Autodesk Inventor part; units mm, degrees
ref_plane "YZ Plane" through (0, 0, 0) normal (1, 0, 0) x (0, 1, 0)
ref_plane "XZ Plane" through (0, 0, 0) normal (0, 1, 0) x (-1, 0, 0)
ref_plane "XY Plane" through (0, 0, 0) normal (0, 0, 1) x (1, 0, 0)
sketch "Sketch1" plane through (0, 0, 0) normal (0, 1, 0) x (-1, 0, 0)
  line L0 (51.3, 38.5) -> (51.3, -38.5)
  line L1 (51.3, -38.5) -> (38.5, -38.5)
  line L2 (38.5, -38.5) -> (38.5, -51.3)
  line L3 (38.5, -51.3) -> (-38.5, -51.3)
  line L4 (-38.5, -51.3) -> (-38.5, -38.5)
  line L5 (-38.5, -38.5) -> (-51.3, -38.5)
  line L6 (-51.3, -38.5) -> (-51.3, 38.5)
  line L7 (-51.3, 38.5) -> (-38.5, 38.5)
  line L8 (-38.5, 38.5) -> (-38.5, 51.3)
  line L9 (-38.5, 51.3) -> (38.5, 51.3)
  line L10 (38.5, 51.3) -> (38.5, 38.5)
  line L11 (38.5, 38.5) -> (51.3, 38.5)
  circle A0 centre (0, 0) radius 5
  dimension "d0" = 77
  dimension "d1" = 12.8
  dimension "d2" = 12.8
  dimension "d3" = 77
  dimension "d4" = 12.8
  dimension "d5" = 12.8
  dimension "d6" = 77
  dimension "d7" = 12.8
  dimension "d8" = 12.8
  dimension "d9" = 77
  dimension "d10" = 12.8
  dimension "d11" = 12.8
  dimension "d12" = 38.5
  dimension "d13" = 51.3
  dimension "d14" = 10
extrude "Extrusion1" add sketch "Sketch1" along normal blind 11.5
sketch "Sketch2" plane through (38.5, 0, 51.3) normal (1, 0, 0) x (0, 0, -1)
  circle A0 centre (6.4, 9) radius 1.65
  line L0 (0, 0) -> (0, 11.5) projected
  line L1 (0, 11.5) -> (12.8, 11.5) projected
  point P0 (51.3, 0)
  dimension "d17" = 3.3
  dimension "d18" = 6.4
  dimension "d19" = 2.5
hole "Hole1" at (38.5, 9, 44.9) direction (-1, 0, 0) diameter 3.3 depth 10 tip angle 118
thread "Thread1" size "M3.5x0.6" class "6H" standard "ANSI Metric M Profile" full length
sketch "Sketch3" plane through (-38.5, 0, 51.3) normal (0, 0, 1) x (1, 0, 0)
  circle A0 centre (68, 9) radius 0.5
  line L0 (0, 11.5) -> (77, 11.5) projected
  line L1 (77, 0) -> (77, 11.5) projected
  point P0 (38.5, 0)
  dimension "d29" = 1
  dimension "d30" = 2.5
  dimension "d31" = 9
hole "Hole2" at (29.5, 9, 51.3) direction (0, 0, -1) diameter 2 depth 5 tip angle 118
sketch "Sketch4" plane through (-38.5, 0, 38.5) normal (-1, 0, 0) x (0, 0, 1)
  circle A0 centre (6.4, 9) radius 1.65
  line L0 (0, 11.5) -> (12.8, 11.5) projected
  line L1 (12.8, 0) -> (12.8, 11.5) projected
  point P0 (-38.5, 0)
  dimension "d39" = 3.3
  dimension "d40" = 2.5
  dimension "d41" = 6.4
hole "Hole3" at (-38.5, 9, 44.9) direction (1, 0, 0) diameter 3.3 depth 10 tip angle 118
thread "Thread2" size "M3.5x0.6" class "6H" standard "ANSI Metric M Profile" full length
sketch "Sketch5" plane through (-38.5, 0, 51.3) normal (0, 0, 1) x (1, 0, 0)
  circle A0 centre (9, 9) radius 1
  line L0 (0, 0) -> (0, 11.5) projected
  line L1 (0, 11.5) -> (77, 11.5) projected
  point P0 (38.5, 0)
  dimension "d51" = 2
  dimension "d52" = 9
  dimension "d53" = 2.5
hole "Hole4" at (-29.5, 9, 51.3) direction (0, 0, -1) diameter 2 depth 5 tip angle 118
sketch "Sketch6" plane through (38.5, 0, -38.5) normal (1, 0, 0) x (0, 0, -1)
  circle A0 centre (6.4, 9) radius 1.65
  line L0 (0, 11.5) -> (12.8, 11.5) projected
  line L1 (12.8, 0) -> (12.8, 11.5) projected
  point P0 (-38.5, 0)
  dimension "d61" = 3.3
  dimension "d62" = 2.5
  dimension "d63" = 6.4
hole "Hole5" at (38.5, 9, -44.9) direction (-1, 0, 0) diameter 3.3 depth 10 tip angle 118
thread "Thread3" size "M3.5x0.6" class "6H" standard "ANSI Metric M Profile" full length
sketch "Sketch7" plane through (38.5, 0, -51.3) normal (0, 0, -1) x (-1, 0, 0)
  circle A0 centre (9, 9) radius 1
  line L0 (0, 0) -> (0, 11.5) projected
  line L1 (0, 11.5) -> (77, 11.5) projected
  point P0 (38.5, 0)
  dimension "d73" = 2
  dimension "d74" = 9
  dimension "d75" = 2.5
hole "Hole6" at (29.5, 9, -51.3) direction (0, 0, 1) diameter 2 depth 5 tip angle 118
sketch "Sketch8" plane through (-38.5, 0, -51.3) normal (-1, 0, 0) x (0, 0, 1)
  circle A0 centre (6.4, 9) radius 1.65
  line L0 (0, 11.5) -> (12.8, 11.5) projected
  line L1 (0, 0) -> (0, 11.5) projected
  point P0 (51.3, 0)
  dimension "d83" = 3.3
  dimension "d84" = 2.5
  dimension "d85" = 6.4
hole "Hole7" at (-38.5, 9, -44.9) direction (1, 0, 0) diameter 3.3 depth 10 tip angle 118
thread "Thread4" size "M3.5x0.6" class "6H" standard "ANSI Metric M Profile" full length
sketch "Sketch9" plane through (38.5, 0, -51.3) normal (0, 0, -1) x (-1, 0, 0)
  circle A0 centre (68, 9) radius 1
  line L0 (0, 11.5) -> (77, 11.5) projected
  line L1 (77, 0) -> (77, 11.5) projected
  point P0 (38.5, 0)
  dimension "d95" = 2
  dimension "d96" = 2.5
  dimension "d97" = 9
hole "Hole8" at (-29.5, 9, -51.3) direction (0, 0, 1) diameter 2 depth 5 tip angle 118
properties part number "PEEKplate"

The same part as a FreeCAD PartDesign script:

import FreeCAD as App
import Part
import Sketcher
from FreeCAD import Vector
Q = App.Units.Quantity


def add_polygon(sketch, points):
    """Adds a closed chain of lines whose ends are joined by coincident constraints."""
    first, n = sketch.GeometryCount, len(points)
    for a, b in zip(points, points[1:] + points[:1]):
        sketch.addGeometry(Part.LineSegment(App.Vector(*a, 0), App.Vector(*b, 0)), False)
    for i in range(n):
        sketch.addConstraint(Sketcher.Constraint("Coincident", first + i, 2, first + (i + 1) % n, 1))

doc = App.newDocument("Part")
body = doc.addObject("PartDesign::Body", "Body")

sketch1 = body.newObject("Sketcher::SketchObject", "Sketch")
sketch1.AttachmentSupport = (doc.getObject("XZ_Plane"), [""])
sketch1.MapMode = "FlatFace"
add_polygon(sketch1, [(-51, -38), (-51, 38), (-38, 38), (-38, 51), (38, 51), (38, 38), (51, 38), (51, -38), (38, -38), (38, -51), (-38, -51), (-38, -38)])
sketch1.addGeometry(Part.Circle(Vector(0, 0, 0), Vector(0, 0, 1), 5), False)
sketch1.addConstraint(Sketcher.Constraint("Vertical", 0))
sketch1.addConstraint(Sketcher.Constraint("Horizontal", 1))
sketch1.addConstraint(Sketcher.Constraint("Vertical", 2))
sketch1.addConstraint(Sketcher.Constraint("Horizontal", 3))
sketch1.addConstraint(Sketcher.Constraint("Vertical", 4))
sketch1.addConstraint(Sketcher.Constraint("Horizontal", 5))
sketch1.addConstraint(Sketcher.Constraint("Vertical", 6))
sketch1.addConstraint(Sketcher.Constraint("Horizontal", 7))
sketch1.addConstraint(Sketcher.Constraint("Vertical", 8))
sketch1.addConstraint(Sketcher.Constraint("Horizontal", 9))
sketch1.addConstraint(Sketcher.Constraint("Vertical", 10))
sketch1.addConstraint(Sketcher.Constraint("Horizontal", 11))
sketch1.addConstraint(Sketcher.Constraint("Coincident", 12, 3, -1, 1))
sketch1.addConstraint(Sketcher.Constraint("Symmetric", 0, 2, 6, 2, -1, 1))
sketch1.addConstraint(Sketcher.Constraint("Symmetric", 2, 2, 8, 2, -1, 1))
sketch1.addConstraint(Sketcher.Constraint("Symmetric", 4, 2, 10, 2, -1, 1))
sketch1.addConstraint(Sketcher.Constraint("Symmetric", 1, 2, 4, 2, -2))
sketch1.addConstraint(Sketcher.Constraint("Equal", 9, 0))
sketch1.addConstraint(Sketcher.Constraint("Equal", 11, 2))
sketch1.addConstraint(Sketcher.Constraint("Diameter", 12, Q("10 mm")))
sketch1.addConstraint(Sketcher.Constraint("DistanceX", 3, 1, 3, 2, Q("77 mm")))
sketch1.addConstraint(Sketcher.Constraint("DistanceX", 1, 1, 1, 2, Q("12.8 mm")))
pad1 = body.newObject("PartDesign::Pad", "Pad")
pad1.Profile = sketch1
pad1.Length = 11.5
pad1.Reversed = True

sketch2 = body.newObject("Sketcher::SketchObject", "Sketch001")
sketch2.AttachmentSupport = (doc.getObject("YZ_Plane"), [""])
sketch2.MapMode = "FlatFace"
sketch2.AttachmentOffset = App.Placement(Vector(0, 0, 38.5), App.Rotation())
sketch2.addGeometry(Part.Circle(Vector(9, 44.9, 0), Vector(0, 0, 1), 1.6), False)
sketch2.addConstraint(Sketcher.Constraint("Diameter", 0, Q("3.3 mm")))
sketch2.addConstraint(Sketcher.Constraint("DistanceX", -1, 1, 0, 3, Q("9 mm")))
sketch2.addConstraint(Sketcher.Constraint("DistanceY", -1, 1, 0, 3, Q("44.9 mm")))
doc.recompute()
hole = body.newObject("PartDesign::Hole", "Hole")
hole.Profile = sketch2
hole.ThreadType = "None"
hole.Diameter = 3.3
hole.DepthType = "Dimension"
hole.Depth = 10
hole.DrillPoint = "Angled"
hole.DrillPointAngle = 118

sketch3 = body.newObject("Sketcher::SketchObject", "Sketch002")
sketch3.AttachmentSupport = (doc.getObject("XY_Plane"), [""])
sketch3.MapMode = "FlatFace"
sketch3.AttachmentOffset = App.Placement(Vector(0, 0, 51.3), App.Rotation())
sketch3.addGeometry(Part.Circle(Vector(29.5, 9, 0), Vector(0, 0, 1), 1), False)
sketch3.addConstraint(Sketcher.Constraint("Diameter", 0, Q("2 mm")))
sketch3.addConstraint(Sketcher.Constraint("DistanceY", -1, 1, 0, 3, Q("9 mm")))
sketch3.addConstraint(Sketcher.Constraint("DistanceX", -1, 1, 0, 3, Q("29.5 mm")))
doc.recompute()
hole2 = body.newObject("PartDesign::Hole", "Hole001")
hole2.Profile = sketch3
hole2.ThreadType = "None"
hole2.Diameter = 2
hole2.DepthType = "Dimension"
hole2.Depth = 5
hole2.DrillPoint = "Angled"
hole2.DrillPointAngle = 118

sketch4 = body.newObject("Sketcher::SketchObject", "Sketch003")
sketch4.AttachmentSupport = (doc.getObject("YZ_Plane"), [""])
sketch4.MapMode = "FlatFace"
sketch4.AttachmentOffset = App.Placement(Vector(0, 0, -38.5), App.Rotation())
sketch4.addGeometry(Part.Circle(Vector(9, 44.9, 0), Vector(0, 0, 1), 1.6), False)
sketch4.addConstraint(Sketcher.Constraint("Diameter", 0, Q("3.3 mm")))
sketch4.addConstraint(Sketcher.Constraint("DistanceX", -1, 1, 0, 3, Q("9 mm")))
sketch4.addConstraint(Sketcher.Constraint("DistanceY", -1, 1, 0, 3, Q("44.9 mm")))
doc.recompute()
hole3 = body.newObject("PartDesign::Hole", "Hole002")
hole3.Profile = sketch4
hole3.ThreadType = "None"
hole3.Diameter = 3.3
hole3.DepthType = "Dimension"
hole3.Depth = 10
hole3.DrillPoint = "Angled"
hole3.DrillPointAngle = 118
hole3.Reversed = True

sketch5 = body.newObject("Sketcher::SketchObject", "Sketch004")
sketch5.AttachmentSupport = (doc.getObject("XY_Plane"), [""])
sketch5.MapMode = "FlatFace"
sketch5.AttachmentOffset = App.Placement(Vector(0, 0, 51.3), App.Rotation())
sketch5.addGeometry(Part.Circle(Vector(-29.5, 9, 0), Vector(0, 0, 1), 1), False)
sketch5.addConstraint(Sketcher.Constraint("Diameter", 0, Q("2 mm")))
sketch5.addConstraint(Sketcher.Constraint("DistanceY", -1, 1, 0, 3, Q("9 mm")))
sketch5.addConstraint(Sketcher.Constraint("DistanceX", 0, 3, -1, 1, Q("29.5 mm")))
doc.recompute()
hole4 = body.newObject("PartDesign::Hole", "Hole003")
hole4.Profile = sketch5
hole4.ThreadType = "None"
hole4.Diameter = 2
hole4.DepthType = "Dimension"
hole4.Depth = 5
hole4.DrillPoint = "Angled"
hole4.DrillPointAngle = 118

sketch6 = body.newObject("Sketcher::SketchObject", "Sketch005")
sketch6.AttachmentSupport = (doc.getObject("YZ_Plane"), [""])
sketch6.MapMode = "FlatFace"
sketch6.AttachmentOffset = App.Placement(Vector(0, 0, 38.5), App.Rotation())
sketch6.addGeometry(Part.Circle(Vector(9, -44.9, 0), Vector(0, 0, 1), 1.6), False)
sketch6.addConstraint(Sketcher.Constraint("Diameter", 0, Q("3.3 mm")))
sketch6.addConstraint(Sketcher.Constraint("DistanceX", -1, 1, 0, 3, Q("9 mm")))
sketch6.addConstraint(Sketcher.Constraint("DistanceY", 0, 3, -1, 1, Q("44.9 mm")))
doc.recompute()
hole5 = body.newObject("PartDesign::Hole", "Hole004")
hole5.Profile = sketch6
hole5.ThreadType = "None"
hole5.Diameter = 3.3
hole5.DepthType = "Dimension"
hole5.Depth = 10
hole5.DrillPoint = "Angled"
hole5.DrillPointAngle = 118

sketch7 = body.newObject("Sketcher::SketchObject", "Sketch006")
sketch7.AttachmentSupport = (doc.getObject("XY_Plane"), [""])
sketch7.MapMode = "FlatFace"
sketch7.AttachmentOffset = App.Placement(Vector(0, 0, -51.3), App.Rotation())
sketch7.addGeometry(Part.Circle(Vector(29.5, 9, 0), Vector(0, 0, 1), 1), False)
sketch7.addConstraint(Sketcher.Constraint("Diameter", 0, Q("2 mm")))
sketch7.addConstraint(Sketcher.Constraint("DistanceY", -1, 1, 0, 3, Q("9 mm")))
sketch7.addConstraint(Sketcher.Constraint("DistanceX", -1, 1, 0, 3, Q("29.5 mm")))
doc.recompute()
hole6 = body.newObject("PartDesign::Hole", "Hole005")
hole6.Profile = sketch7
hole6.ThreadType = "None"
hole6.Diameter = 2
hole6.DepthType = "Dimension"
hole6.Depth = 5
hole6.DrillPoint = "Angled"
hole6.DrillPointAngle = 118
hole6.Reversed = True

sketch8 = body.newObject("Sketcher::SketchObject", "Sketch007")
sketch8.AttachmentSupport = (doc.getObject("YZ_Plane"), [""])
sketch8.MapMode = "FlatFace"
sketch8.AttachmentOffset = App.Placement(Vector(0, 0, -38.5), App.Rotation())
sketch8.addGeometry(Part.Circle(Vector(9, -44.9, 0), Vector(0, 0, 1), 1.6), False)
sketch8.addConstraint(Sketcher.Constraint("Diameter", 0, Q("3.3 mm")))
sketch8.addConstraint(Sketcher.Constraint("DistanceX", -1, 1, 0, 3, Q("9 mm")))
sketch8.addConstraint(Sketcher.Constraint("DistanceY", 0, 3, -1, 1, Q("44.9 mm")))
doc.recompute()
hole7 = body.newObject("PartDesign::Hole", "Hole006")
hole7.Profile = sketch8
hole7.ThreadType = "None"
hole7.Diameter = 3.3
hole7.DepthType = "Dimension"
hole7.Depth = 10
hole7.DrillPoint = "Angled"
hole7.DrillPointAngle = 118
hole7.Reversed = True

sketch9 = body.newObject("Sketcher::SketchObject", "Sketch008")
sketch9.AttachmentSupport = (doc.getObject("XY_Plane"), [""])
sketch9.MapMode = "FlatFace"
sketch9.AttachmentOffset = App.Placement(Vector(0, 0, -51.3), App.Rotation())
sketch9.addGeometry(Part.Circle(Vector(-29.5, 9, 0), Vector(0, 0, 1), 1), False)
sketch9.addConstraint(Sketcher.Constraint("Diameter", 0, Q("2 mm")))
sketch9.addConstraint(Sketcher.Constraint("DistanceY", -1, 1, 0, 3, Q("9 mm")))
sketch9.addConstraint(Sketcher.Constraint("DistanceX", 0, 3, -1, 1, Q("29.5 mm")))
doc.recompute()
hole8 = body.newObject("PartDesign::Hole", "Hole007")
hole8.Profile = sketch9
hole8.ThreadType = "None"
hole8.Diameter = 2
hole8.DepthType = "Dimension"
hole8.Depth = 5
hole8.DrillPoint = "Angled"
hole8.DrillPointAngle = 118
hole8.Reversed = True

doc.recompute()
